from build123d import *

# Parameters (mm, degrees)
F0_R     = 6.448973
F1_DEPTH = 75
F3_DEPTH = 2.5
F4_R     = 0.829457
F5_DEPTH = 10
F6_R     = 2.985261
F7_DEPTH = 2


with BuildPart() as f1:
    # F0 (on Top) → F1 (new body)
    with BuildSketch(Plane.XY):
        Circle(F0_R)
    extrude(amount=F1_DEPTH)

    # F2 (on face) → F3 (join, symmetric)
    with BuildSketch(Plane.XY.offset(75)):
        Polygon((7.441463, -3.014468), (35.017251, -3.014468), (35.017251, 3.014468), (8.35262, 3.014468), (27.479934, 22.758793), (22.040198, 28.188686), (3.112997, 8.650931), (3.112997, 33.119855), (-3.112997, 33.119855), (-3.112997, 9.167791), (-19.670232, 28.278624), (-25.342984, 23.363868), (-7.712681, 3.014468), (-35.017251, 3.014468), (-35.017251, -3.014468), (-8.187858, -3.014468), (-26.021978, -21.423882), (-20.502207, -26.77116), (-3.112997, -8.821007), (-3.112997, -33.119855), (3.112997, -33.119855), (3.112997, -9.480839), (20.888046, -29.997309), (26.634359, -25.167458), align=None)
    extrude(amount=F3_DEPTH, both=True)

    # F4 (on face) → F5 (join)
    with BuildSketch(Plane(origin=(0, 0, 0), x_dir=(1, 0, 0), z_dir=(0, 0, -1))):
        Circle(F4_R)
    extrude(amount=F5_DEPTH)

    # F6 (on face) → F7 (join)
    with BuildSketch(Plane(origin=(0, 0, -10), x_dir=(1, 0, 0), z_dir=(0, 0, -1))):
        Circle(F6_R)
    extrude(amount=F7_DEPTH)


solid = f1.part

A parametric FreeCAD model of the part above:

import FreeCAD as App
import Part
import Sketcher

doc = App.newDocument("Part")
params = doc.addObject("Spreadsheet::Sheet", "Params")
for row, (alias, value) in enumerate([
    ("pad1_length", "75 mm"),
    ("pad2_length", "5 mm"),
    ("pad3_length", "10 mm"),
    ("pad4_length", "2 mm"),
], start=1):
    params.set(f"A{row}", alias)
    params.set(f"B{row}", "=" + value)
    params.setAlias(f"B{row}", alias)

body = doc.addObject("PartDesign::Body", "Body")

# Sketch on XY plane
sketch1 = body.newObject("Sketcher::SketchObject", "Sketch")
sketch1.AttachmentSupport = (doc.getObject("XY_Plane"), [""])
sketch1.MapMode = "FlatFace"
sketch1.addGeometry(Part.Circle(App.Vector(0, 0, 0), App.Vector(0, 0, 1), 6.448973), False)
sketch1.addConstraint([
    Sketcher.Constraint("Coincident", 0, 3, -1, 1),
    Sketcher.Constraint("Diameter", 0, 12.897946),
])
pad1 = body.newObject("PartDesign::Pad", "Pad")
pad1.Profile = sketch1
pad1.setExpression("Length", "Params.pad1_length")

# Sketch on XY plane
sketch2 = body.newObject("Sketcher::SketchObject", "Sketch001")
sketch2.AttachmentSupport = (doc.getObject("XY_Plane"), [""])
sketch2.MapMode = "FlatFace"
sketch2.AttachmentOffset = App.Placement(App.Vector(0, 0, 75), App.Rotation())
sketch2.addGeometry([
    Part.LineSegment(App.Vector(7.441463, -3.014468, 0), App.Vector(35.017251, -3.014468, 0)),  # 0
    Part.LineSegment(App.Vector(35.017251, -3.014468, 0), App.Vector(35.017251, 3.014468, 0)),  # 1
    Part.LineSegment(App.Vector(35.017251, 3.014468, 0), App.Vector(8.35262, 3.014468, 0)),  # 2
    Part.LineSegment(App.Vector(8.35262, 3.014468, 0), App.Vector(27.479934, 22.758793, 0)),  # 3
    Part.LineSegment(App.Vector(27.479934, 22.758793, 0), App.Vector(22.040198, 28.188686, 0)),  # 4
    Part.LineSegment(App.Vector(22.040198, 28.188686, 0), App.Vector(3.112997, 8.650931, 0)),  # 5
    Part.LineSegment(App.Vector(3.112997, 8.650931, 0), App.Vector(3.112997, 33.119855, 0)),  # 6
    Part.LineSegment(App.Vector(3.112997, 33.119855, 0), App.Vector(-3.112997, 33.119855, 0)),  # 7
    Part.LineSegment(App.Vector(-3.112997, 33.119855, 0), App.Vector(-3.112997, 9.167791, 0)),  # 8
    Part.LineSegment(App.Vector(-3.112997, 9.167791, 0), App.Vector(-19.670232, 28.278624, 0)),  # 9
    Part.LineSegment(App.Vector(-19.670232, 28.278624, 0), App.Vector(-25.342984, 23.363868, 0)),  # 10
    Part.LineSegment(App.Vector(-25.342984, 23.363868, 0), App.Vector(-7.712681, 3.014468, 0)),  # 11
    Part.LineSegment(App.Vector(-7.712681, 3.014468, 0), App.Vector(-35.017251, 3.014468, 0)),  # 12
    Part.LineSegment(App.Vector(-35.017251, 3.014468, 0), App.Vector(-35.017251, -3.014468, 0)),  # 13
    Part.LineSegment(App.Vector(-35.017251, -3.014468, 0), App.Vector(-8.187858, -3.014468, 0)),  # 14
    Part.LineSegment(App.Vector(-8.187858, -3.014468, 0), App.Vector(-26.021978, -21.423882, 0)),  # 15
    Part.LineSegment(App.Vector(-26.021978, -21.423882, 0), App.Vector(-20.502207, -26.77116, 0)),  # 16
    Part.LineSegment(App.Vector(-20.502207, -26.77116, 0), App.Vector(-3.112997, -8.821007, 0)),  # 17
    Part.LineSegment(App.Vector(-3.112997, -8.821007, 0), App.Vector(-3.112997, -33.119855, 0)),  # 18
    Part.LineSegment(App.Vector(-3.112997, -33.119855, 0), App.Vector(3.112997, -33.119855, 0)),  # 19
    Part.LineSegment(App.Vector(3.112997, -33.119855, 0), App.Vector(3.112997, -9.480839, 0)),  # 20
    Part.LineSegment(App.Vector(3.112997, -9.480839, 0), App.Vector(20.888046, -29.997309, 0)),  # 21
    Part.LineSegment(App.Vector(20.888046, -29.997309, 0), App.Vector(26.634359, -25.167458, 0)),  # 22
    Part.LineSegment(App.Vector(26.634359, -25.167458, 0), App.Vector(7.441463, -3.014468, 0)),  # 23
], False)
sketch2.addConstraint([
    Sketcher.Constraint("Coincident", 0, 2, 1, 1),
    Sketcher.Constraint("Coincident", 1, 2, 2, 1),
    Sketcher.Constraint("Coincident", 2, 2, 3, 1),
    Sketcher.Constraint("Coincident", 3, 2, 4, 1),
    Sketcher.Constraint("Coincident", 4, 2, 5, 1),
    Sketcher.Constraint("Coincident", 5, 2, 6, 1),
    Sketcher.Constraint("Coincident", 6, 2, 7, 1),
    Sketcher.Constraint("Coincident", 7, 2, 8, 1),
    Sketcher.Constraint("Coincident", 8, 2, 9, 1),
    Sketcher.Constraint("Coincident", 9, 2, 10, 1),
    Sketcher.Constraint("Coincident", 10, 2, 11, 1),
    Sketcher.Constraint("Coincident", 11, 2, 12, 1),
    Sketcher.Constraint("Coincident", 12, 2, 13, 1),
    Sketcher.Constraint("Coincident", 13, 2, 14, 1),
    Sketcher.Constraint("Coincident", 14, 2, 15, 1),
    Sketcher.Constraint("Coincident", 15, 2, 16, 1),
    Sketcher.Constraint("Coincident", 16, 2, 17, 1),
    Sketcher.Constraint("Coincident", 17, 2, 18, 1),
    Sketcher.Constraint("Coincident", 18, 2, 19, 1),
    Sketcher.Constraint("Coincident", 19, 2, 20, 1),
    Sketcher.Constraint("Coincident", 20, 2, 21, 1),
    Sketcher.Constraint("Coincident", 21, 2, 22, 1),
    Sketcher.Constraint("Coincident", 22, 2, 23, 1),
    Sketcher.Constraint("Coincident", 23, 2, 0, 1),
    Sketcher.Constraint("Horizontal", 0),
    Sketcher.Constraint("Vertical", 1),
    Sketcher.Constraint("Horizontal", 2),
    Sketcher.Constraint("Vertical", 6),
    Sketcher.Constraint("Horizontal", 7),
    Sketcher.Constraint("Vertical", 8),
    Sketcher.Constraint("Horizontal", 12),
    Sketcher.Constraint("Vertical", 13),
    Sketcher.Constraint("Horizontal", 14),
    Sketcher.Constraint("Vertical", 18),
    Sketcher.Constraint("Horizontal", 19),
    Sketcher.Constraint("Vertical", 20),
    Sketcher.Constraint("DistanceX", 0, 1, 0, 2, 27.575788),
    Sketcher.Constraint("DistanceX", 2, 2, 2, 1, 26.664631),
    Sketcher.Constraint("DistanceX", 12, 2, 12, 1, 27.30457),
    Sketcher.Constraint("DistanceX", -1, 1, 4, 2, 22.040198),
    Sketcher.Constraint("DistanceX", 5, 2, 4, 2, 18.927201),
    Sketcher.Constraint("DistanceY", 0, 2, 5, 2, 11.665399),
    Sketcher.Constraint("DistanceX", 11, 2, 2, 2, 16.065301),
    Sketcher.Constraint("DistanceY", 11, 2, 10, 2, 20.3494),
    Sketcher.Constraint("DistanceY", 14, 2, 5, 2, 11.665399),
    Sketcher.Constraint("DistanceY", 21, 2, 17, 2, 21.176302),
    Sketcher.Constraint("Distance", 3, 27.489862),
    Sketcher.Constraint("Distance", 4, 7.685992),
    Sketcher.Constraint("Distance", 10, 7.505661),
    Sketcher.Constraint("Distance", 17, 24.991851),
    Sketcher.Constraint("DistanceX", 7, 2, 7, 1, 6.225994),
    Sketcher.Constraint("DistanceX", 14, 1, 14, 2, 26.829393),
    Sketcher.Constraint("DistanceX", 19, 1, 19, 2, 6.225994),
    Sketcher.Constraint("DistanceY", 1, 1, 1, 2, 6.028936),
    Sketcher.Constraint("DistanceY", 6, 1, 6, 2, 24.468924),
    Sketcher.Constraint("DistanceY", 8, 2, 8, 1, 23.952064),
    Sketcher.Constraint("DistanceY", 13, 2, 13, 1, 6.028936),
    Sketcher.Constraint("DistanceY", 18, 2, 18, 1, 24.298848),
    Sketcher.Constraint("DistanceY", 20, 1, 20, 2, 23.639016),
    Sketcher.Constraint("DistanceX", -1, 1, 0, 2, 35.017251),
    Sketcher.Constraint("DistanceY", -1, 1, 5, 2, 8.650931),
    Sketcher.Constraint("DistanceX", 9, 2, -1, 1, 19.670232),
    Sketcher.Constraint("DistanceX", 15, 2, -1, 1, 26.021978),
    Sketcher.Constraint("DistanceY", 15, 2, -1, 1, 21.423882),
    Sketcher.Constraint("DistanceY", 16, 2, -1, 1, 26.77116),
    Sketcher.Constraint("DistanceY", 20, 2, -1, 1, 9.480839),
    Sketcher.Constraint("DistanceX", -1, 1, 22, 2, 26.634359),
    Sketcher.Constraint("DistanceY", 22, 2, -1, 1, 25.167458),
    Sketcher.Constraint("DistanceY", 0, 2, 3, 2, 25.773261),
    Sketcher.Constraint("DistanceY", 9, 2, 7, 2, 4.841231),
    Sketcher.Constraint("DistanceX", 15, 2, 16, 2, 5.519771),
    Sketcher.Constraint("DistanceX", 19, 2, 21, 2, 17.775049),
])
pad2 = body.newObject("PartDesign::Pad", "Pad001")
pad2.Profile = sketch2
pad2.setExpression("Length", "Params.pad2_length")
pad2.Midplane = True

# Sketch on XY plane
sketch3 = body.newObject("Sketcher::SketchObject", "Sketch002")
sketch3.AttachmentSupport = (doc.getObject("XY_Plane"), [""])
sketch3.MapMode = "FlatFace"
sketch3.addGeometry(Part.Circle(App.Vector(0, 0, 0), App.Vector(0, 0, 1), 0.829457), False)
sketch3.addConstraint([
    Sketcher.Constraint("Coincident", 0, 3, -1, 1),
    Sketcher.Constraint("Diameter", 0, 1.658914),
])
pad3 = body.newObject("PartDesign::Pad", "Pad002")
pad3.Profile = sketch3
pad3.setExpression("Length", "Params.pad3_length")
pad3.Reversed = True

# Sketch on XY plane
sketch4 = body.newObject("Sketcher::SketchObject", "Sketch003")
sketch4.AttachmentSupport = (doc.getObject("XY_Plane"), [""])
sketch4.MapMode = "FlatFace"
sketch4.AttachmentOffset = App.Placement(App.Vector(0, 0, -10), App.Rotation())
sketch4.addGeometry(Part.Circle(App.Vector(0, 0, 0), App.Vector(0, 0, 1), 2.985261), False)
sketch4.addConstraint([
    Sketcher.Constraint("Coincident", 0, 3, -1, 1),
    Sketcher.Constraint("Diameter", 0, 5.970522),
])
pad4 = body.newObject("PartDesign::Pad", "Pad003")
pad4.Profile = sketch4
pad4.setExpression("Length", "Params.pad4_length")
pad4.Reversed = True

doc.recompute()
